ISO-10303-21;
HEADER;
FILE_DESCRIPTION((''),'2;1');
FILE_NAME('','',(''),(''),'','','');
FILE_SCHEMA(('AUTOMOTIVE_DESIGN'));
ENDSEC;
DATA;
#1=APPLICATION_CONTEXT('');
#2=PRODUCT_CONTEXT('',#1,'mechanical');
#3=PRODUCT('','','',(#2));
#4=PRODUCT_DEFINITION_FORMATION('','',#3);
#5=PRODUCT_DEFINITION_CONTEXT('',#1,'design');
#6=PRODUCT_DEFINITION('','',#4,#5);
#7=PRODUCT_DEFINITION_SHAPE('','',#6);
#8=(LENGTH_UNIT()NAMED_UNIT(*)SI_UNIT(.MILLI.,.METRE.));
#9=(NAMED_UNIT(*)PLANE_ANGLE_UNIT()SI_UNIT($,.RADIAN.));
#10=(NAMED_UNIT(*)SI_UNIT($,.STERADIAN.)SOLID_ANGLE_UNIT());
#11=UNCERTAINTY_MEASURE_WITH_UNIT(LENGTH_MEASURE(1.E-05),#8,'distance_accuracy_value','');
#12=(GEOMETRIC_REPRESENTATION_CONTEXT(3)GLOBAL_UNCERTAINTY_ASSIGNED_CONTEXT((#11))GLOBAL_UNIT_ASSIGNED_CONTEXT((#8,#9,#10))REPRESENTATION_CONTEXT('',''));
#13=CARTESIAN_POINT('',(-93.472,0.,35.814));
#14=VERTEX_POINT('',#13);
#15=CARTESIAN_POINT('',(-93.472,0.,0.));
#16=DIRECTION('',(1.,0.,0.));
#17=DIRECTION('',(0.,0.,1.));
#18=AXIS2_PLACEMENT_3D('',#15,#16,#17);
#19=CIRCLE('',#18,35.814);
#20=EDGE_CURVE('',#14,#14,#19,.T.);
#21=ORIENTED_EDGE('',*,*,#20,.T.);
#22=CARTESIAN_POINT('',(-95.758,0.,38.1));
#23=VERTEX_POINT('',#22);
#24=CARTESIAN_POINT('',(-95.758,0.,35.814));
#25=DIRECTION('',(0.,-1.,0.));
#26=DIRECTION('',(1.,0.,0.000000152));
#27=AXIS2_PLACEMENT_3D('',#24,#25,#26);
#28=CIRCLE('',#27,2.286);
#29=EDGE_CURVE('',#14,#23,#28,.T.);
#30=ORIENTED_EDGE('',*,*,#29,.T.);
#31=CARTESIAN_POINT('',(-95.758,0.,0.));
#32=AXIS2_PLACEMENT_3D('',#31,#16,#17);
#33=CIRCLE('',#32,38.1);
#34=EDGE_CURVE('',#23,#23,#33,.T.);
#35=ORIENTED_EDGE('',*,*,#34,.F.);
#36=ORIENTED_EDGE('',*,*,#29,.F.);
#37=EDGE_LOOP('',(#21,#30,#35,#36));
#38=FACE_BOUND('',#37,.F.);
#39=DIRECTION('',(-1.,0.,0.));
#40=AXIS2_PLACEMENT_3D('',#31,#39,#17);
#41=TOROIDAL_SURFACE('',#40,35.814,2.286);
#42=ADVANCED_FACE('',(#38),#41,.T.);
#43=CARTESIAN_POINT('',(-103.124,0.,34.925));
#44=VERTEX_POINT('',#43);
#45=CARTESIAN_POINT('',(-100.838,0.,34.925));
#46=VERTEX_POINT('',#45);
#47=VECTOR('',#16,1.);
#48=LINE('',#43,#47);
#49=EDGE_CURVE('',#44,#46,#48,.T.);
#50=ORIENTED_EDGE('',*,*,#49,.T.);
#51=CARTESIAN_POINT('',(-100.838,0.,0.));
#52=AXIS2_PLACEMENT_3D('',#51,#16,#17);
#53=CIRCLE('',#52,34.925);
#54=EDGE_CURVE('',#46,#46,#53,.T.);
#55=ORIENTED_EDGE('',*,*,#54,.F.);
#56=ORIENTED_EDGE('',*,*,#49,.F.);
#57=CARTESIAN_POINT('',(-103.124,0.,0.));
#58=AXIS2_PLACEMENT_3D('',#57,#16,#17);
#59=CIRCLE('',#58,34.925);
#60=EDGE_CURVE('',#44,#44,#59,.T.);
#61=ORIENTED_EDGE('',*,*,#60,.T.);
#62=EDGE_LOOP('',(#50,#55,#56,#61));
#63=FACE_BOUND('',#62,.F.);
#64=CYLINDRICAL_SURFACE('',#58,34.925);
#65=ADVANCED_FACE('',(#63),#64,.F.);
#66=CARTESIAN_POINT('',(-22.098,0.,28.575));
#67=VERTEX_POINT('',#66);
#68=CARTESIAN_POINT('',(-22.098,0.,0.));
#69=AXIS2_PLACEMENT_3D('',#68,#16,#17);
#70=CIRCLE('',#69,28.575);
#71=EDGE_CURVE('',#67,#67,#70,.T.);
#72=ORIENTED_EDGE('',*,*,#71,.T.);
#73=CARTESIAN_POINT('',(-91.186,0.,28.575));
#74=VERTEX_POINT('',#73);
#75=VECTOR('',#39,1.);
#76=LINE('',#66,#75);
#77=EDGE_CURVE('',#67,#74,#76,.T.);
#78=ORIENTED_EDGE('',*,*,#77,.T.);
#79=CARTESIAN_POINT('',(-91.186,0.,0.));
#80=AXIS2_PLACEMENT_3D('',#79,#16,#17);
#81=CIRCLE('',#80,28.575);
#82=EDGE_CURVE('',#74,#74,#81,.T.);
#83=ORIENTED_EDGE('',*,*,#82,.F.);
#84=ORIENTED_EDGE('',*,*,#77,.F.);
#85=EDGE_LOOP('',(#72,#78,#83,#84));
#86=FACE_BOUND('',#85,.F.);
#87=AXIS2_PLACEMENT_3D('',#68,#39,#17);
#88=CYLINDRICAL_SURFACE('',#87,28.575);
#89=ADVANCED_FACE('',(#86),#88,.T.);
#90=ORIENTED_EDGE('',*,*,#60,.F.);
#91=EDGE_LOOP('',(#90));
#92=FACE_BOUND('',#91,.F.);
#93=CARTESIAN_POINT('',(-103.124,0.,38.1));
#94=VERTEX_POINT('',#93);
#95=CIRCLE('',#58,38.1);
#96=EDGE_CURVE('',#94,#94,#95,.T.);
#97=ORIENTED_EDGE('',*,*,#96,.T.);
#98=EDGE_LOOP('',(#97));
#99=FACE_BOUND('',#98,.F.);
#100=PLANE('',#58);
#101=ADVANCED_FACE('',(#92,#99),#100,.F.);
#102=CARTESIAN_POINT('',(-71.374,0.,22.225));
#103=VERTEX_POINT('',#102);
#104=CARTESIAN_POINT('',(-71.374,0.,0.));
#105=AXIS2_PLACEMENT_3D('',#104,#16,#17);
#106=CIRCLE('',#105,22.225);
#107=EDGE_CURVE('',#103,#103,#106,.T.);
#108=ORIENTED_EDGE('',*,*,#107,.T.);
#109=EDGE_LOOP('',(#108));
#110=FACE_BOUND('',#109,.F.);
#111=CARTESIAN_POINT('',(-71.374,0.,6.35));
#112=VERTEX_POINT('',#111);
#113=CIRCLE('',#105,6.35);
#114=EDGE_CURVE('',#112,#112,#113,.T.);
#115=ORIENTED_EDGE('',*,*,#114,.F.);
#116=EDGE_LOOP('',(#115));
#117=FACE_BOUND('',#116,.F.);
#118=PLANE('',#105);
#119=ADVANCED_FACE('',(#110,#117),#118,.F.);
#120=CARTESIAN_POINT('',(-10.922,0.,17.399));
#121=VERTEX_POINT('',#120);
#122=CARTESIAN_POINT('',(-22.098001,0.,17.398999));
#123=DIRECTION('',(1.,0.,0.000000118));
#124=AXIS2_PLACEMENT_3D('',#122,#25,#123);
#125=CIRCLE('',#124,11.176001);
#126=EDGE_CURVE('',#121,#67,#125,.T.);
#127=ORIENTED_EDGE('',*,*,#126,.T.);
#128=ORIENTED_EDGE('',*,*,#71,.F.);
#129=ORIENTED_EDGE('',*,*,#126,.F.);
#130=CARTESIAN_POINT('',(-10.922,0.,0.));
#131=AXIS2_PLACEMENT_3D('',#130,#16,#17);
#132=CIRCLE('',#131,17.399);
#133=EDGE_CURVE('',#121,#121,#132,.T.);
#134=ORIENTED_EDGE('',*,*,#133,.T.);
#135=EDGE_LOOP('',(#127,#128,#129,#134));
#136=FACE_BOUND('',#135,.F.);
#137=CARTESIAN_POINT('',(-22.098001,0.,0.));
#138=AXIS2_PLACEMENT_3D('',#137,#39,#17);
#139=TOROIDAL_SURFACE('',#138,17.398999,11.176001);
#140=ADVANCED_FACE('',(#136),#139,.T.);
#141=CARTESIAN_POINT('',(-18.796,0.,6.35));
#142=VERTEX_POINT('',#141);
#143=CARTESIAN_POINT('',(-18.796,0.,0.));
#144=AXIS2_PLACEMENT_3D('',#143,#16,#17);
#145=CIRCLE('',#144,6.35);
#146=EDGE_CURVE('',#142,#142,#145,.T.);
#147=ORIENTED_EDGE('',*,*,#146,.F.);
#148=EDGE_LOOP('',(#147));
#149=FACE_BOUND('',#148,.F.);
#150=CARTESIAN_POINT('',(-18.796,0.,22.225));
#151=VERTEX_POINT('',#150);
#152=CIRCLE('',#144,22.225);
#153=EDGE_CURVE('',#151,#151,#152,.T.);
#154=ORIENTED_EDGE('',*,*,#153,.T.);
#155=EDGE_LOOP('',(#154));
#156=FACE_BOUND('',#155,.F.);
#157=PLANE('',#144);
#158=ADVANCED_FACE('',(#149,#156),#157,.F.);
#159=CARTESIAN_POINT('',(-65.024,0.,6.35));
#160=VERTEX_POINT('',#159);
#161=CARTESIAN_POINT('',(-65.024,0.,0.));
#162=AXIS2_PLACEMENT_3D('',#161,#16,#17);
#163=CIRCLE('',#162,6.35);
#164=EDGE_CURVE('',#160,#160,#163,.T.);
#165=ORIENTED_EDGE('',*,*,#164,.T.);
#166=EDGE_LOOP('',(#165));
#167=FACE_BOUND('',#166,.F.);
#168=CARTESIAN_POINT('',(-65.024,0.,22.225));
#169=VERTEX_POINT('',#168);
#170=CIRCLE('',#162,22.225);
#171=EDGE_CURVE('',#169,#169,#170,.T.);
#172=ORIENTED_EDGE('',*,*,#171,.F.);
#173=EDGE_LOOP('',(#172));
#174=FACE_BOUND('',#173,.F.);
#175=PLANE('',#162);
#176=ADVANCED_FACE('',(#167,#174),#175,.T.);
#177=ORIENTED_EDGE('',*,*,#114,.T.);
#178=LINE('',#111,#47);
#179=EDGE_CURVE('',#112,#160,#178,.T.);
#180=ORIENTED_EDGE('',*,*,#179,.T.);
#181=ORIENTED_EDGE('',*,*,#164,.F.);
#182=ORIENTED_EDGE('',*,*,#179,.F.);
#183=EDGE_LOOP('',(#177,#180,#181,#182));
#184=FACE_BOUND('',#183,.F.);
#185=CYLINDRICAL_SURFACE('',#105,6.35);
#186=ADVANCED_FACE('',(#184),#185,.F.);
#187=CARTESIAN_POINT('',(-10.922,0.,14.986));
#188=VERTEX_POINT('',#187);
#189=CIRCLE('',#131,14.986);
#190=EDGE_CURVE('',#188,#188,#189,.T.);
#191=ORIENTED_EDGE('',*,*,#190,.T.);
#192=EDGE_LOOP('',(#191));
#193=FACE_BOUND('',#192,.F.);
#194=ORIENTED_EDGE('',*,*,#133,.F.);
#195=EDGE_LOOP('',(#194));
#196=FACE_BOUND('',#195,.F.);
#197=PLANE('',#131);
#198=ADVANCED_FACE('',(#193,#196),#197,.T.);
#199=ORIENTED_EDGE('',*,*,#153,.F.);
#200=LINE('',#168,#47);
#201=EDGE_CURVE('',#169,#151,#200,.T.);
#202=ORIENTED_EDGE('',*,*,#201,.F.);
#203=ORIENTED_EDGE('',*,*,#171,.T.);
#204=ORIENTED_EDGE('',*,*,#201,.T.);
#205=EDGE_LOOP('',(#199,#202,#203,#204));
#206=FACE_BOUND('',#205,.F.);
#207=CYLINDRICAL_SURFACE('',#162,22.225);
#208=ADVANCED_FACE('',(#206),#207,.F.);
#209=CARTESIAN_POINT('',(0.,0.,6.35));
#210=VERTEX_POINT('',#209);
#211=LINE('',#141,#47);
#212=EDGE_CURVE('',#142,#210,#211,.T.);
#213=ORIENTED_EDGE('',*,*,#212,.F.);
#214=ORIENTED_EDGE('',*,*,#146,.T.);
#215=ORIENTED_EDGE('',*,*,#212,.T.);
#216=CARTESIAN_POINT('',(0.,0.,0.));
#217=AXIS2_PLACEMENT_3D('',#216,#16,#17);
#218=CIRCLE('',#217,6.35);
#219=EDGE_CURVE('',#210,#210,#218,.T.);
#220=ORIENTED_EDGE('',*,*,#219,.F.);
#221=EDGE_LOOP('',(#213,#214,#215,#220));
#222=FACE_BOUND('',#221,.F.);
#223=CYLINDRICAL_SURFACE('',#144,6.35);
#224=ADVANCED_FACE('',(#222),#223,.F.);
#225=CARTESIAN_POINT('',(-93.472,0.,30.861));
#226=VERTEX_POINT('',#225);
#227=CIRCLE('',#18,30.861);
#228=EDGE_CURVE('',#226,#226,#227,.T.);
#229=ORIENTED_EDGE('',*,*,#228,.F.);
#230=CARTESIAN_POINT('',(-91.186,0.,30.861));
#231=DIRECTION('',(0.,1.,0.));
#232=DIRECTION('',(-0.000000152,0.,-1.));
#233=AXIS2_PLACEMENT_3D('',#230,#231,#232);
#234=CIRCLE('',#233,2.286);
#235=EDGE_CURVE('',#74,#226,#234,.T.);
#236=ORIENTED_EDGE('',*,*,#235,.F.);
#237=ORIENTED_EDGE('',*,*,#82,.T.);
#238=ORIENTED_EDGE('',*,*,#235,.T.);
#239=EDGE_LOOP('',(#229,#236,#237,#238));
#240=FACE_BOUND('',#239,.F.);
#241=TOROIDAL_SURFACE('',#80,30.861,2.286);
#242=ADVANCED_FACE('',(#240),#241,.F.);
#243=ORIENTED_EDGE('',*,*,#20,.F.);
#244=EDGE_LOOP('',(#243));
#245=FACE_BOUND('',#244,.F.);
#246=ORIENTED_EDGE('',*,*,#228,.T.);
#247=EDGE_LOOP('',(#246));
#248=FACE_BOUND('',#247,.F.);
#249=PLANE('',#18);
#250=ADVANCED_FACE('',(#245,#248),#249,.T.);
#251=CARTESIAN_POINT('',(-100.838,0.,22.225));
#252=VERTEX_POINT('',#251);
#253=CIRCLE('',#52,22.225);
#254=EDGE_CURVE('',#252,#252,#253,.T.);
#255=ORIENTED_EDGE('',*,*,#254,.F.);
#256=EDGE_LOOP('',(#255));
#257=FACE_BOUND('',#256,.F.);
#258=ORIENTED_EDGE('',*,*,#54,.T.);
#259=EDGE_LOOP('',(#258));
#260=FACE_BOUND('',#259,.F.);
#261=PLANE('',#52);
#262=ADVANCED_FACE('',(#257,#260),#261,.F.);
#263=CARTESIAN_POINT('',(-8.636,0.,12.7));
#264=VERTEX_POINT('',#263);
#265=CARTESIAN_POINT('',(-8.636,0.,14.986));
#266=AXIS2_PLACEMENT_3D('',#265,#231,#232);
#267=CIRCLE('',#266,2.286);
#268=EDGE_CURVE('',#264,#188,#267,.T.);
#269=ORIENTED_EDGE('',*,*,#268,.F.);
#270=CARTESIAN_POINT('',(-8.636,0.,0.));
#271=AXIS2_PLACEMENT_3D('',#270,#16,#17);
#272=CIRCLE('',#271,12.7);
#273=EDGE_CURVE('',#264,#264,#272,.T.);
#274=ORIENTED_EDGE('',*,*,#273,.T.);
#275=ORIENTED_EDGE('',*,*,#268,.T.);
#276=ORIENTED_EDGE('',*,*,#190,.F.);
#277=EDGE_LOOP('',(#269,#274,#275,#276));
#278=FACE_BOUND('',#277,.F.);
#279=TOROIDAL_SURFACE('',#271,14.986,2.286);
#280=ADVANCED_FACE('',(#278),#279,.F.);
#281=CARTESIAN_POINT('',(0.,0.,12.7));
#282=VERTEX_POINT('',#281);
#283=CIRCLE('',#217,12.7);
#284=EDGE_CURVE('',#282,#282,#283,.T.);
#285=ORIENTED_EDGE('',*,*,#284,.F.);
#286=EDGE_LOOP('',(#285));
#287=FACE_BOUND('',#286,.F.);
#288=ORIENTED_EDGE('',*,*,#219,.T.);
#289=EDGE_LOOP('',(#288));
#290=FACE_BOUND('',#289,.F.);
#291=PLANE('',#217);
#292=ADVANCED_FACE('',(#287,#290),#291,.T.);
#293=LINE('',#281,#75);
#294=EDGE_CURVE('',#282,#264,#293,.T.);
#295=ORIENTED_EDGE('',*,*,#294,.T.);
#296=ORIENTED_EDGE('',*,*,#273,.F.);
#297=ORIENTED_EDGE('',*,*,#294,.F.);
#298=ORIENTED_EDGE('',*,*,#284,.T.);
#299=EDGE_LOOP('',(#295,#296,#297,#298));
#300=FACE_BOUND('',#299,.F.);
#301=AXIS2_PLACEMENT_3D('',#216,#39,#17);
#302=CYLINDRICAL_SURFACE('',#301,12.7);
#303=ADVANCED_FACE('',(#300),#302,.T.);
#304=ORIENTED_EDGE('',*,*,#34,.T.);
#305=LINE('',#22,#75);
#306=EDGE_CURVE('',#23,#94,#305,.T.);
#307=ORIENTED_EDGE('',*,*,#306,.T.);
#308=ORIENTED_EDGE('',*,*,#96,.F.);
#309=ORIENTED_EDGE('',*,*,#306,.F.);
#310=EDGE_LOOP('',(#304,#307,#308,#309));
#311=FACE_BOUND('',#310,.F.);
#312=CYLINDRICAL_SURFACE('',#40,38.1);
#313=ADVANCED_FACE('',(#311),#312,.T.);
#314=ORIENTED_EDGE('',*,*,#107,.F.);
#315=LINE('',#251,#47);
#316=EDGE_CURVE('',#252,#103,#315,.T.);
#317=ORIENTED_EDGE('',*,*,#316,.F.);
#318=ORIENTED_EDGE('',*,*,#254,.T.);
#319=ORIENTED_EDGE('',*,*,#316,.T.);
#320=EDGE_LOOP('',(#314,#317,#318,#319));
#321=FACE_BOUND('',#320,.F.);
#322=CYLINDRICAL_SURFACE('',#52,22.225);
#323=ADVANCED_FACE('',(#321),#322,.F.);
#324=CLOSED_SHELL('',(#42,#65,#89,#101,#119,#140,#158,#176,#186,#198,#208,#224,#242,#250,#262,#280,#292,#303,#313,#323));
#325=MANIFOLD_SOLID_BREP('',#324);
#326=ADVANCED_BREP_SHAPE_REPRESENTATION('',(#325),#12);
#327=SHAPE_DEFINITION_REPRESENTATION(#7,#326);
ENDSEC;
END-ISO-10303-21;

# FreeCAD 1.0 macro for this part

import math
import FreeCAD as App
import Part
import Sketcher
Q = App.Units.Quantity

doc = App.newDocument("Part")
body = doc.addObject("PartDesign::Body", "Body")

# Sketch on XZ plane
sketch1 = body.newObject("Sketcher::SketchObject", "Sketch")
sketch1.AttachmentSupport = (doc.getObject("XZ_Plane"), [""])
sketch1.MapMode = "FlatFace"
sketch1.addGeometry([
    Part.LineSegment(App.Vector(-18.8, 6.3, 0), App.Vector(0, 6.3, 0)),  # 0
    Part.LineSegment(App.Vector(0, 6.3, 0), App.Vector(0, 12.7, 0)),  # 1
    Part.LineSegment(App.Vector(0, 12.7, 0), App.Vector(-8.6, 12.7, 0)),  # 2
    Part.ArcOfCircle(Part.Circle(App.Vector(-8.6, 15, 0), App.Vector(0, 0, 1), 2.3), math.radians(-180), math.radians(-90)),  # 3
    Part.LineSegment(App.Vector(-10.9, 15, 0), App.Vector(-10.9, 17.4, 0)),  # 4
    Part.ArcOfCircle(Part.Circle(App.Vector(-22.1, 17.4, 0), App.Vector(0, 0, 1), 11.2), math.radians(0), math.radians(90)),  # 5
    Part.LineSegment(App.Vector(-22.1, 28.6, 0), App.Vector(-91.2, 28.6, 0)),  # 6
    Part.ArcOfCircle(Part.Circle(App.Vector(-91.2, 30.9, 0), App.Vector(0, 0, 1), 2.3), math.radians(-180), math.radians(-90)),  # 7
    Part.LineSegment(App.Vector(-93.5, 30.9, 0), App.Vector(-93.5, 35.8, 0)),  # 8
    Part.ArcOfCircle(Part.Circle(App.Vector(-95.8, 35.8, 0), App.Vector(0, 0, 1), 2.3), math.radians(0), math.radians(90)),  # 9
    Part.LineSegment(App.Vector(-95.8, 38.1, 0), App.Vector(-103.1, 38.1, 0)),  # 10
    Part.LineSegment(App.Vector(-103.1, 38.1, 0), App.Vector(-103.1, 34.9, 0)),  # 11
    Part.LineSegment(App.Vector(-103.1, 34.9, 0), App.Vector(-100.8, 34.9, 0)),  # 12
    Part.LineSegment(App.Vector(-100.8, 34.9, 0), App.Vector(-100.8, 22.2, 0)),  # 13
    Part.LineSegment(App.Vector(-100.8, 22.2, 0), App.Vector(-71.4, 22.2, 0)),  # 14
    Part.LineSegment(App.Vector(-71.4, 22.2, 0), App.Vector(-71.4, 6.3, 0)),  # 15
    Part.LineSegment(App.Vector(-71.4, 6.3, 0), App.Vector(-65, 6.3, 0)),  # 16
    Part.LineSegment(App.Vector(-65, 6.3, 0), App.Vector(-65, 22.2, 0)),  # 17
    Part.LineSegment(App.Vector(-65, 22.2, 0), App.Vector(-18.8, 22.2, 0)),  # 18
    Part.LineSegment(App.Vector(-18.8, 22.2, 0), App.Vector(-18.8, 6.3, 0)),  # 19
], False)
sketch1.addConstraint([
    Sketcher.Constraint("Coincident", 0, 2, 1, 1),
    Sketcher.Constraint("Coincident", 1, 2, 2, 1),
    Sketcher.Constraint("Tangent", 2, 2, 3, 2),
    Sketcher.Constraint("Tangent", 3, 1, 4, 1),
    Sketcher.Constraint("Tangent", 4, 2, 5, 1),
    Sketcher.Constraint("Tangent", 5, 2, 6, 1),
    Sketcher.Constraint("Tangent", 6, 2, 7, 2),
    Sketcher.Constraint("Tangent", 7, 1, 8, 1),
    Sketcher.Constraint("Tangent", 8, 2, 9, 1),
    Sketcher.Constraint("Tangent", 9, 2, 10, 1),
    Sketcher.Constraint("Coincident", 10, 2, 11, 1),
    Sketcher.Constraint("Coincident", 11, 2, 12, 1),
    Sketcher.Constraint("Coincident", 12, 2, 13, 1),
    Sketcher.Constraint("Coincident", 13, 2, 14, 1),
    Sketcher.Constraint("Coincident", 14, 2, 15, 1),
    Sketcher.Constraint("Coincident", 15, 2, 16, 1),
    Sketcher.Constraint("Coincident", 16, 2, 17, 1),
    Sketcher.Constraint("Coincident", 17, 2, 18, 1),
    Sketcher.Constraint("Coincident", 18, 2, 19, 1),
    Sketcher.Constraint("Coincident", 19, 2, 0, 1),
    Sketcher.Constraint("Horizontal", 0),
    Sketcher.Constraint("Vertical", 1),
    Sketcher.Constraint("Horizontal", 2),
    Sketcher.Constraint("Vertical", 4),
    Sketcher.Constraint("Horizontal", 6),
    Sketcher.Constraint("Vertical", 8),
    Sketcher.Constraint("Horizontal", 10),
    Sketcher.Constraint("Vertical", 11),
    Sketcher.Constraint("Horizontal", 12),
    Sketcher.Constraint("Vertical", 13),
    Sketcher.Constraint("Horizontal", 14),
    Sketcher.Constraint("Vertical", 15),
    Sketcher.Constraint("Horizontal", 16),
    Sketcher.Constraint("Vertical", 17),
    Sketcher.Constraint("Horizontal", 18),
    Sketcher.Constraint("Vertical", 19),
    Sketcher.Constraint("Equal", 3, 7),
    Sketcher.Constraint("Equal", 7, 9),
    Sketcher.Constraint("PointOnObject", 0, 2, -2),
    Sketcher.Constraint("Horizontal", 0, 2, 15, 2),
    Sketcher.Constraint("Horizontal", 14, 2, 17, 2),
    Sketcher.Constraint("Equal", 16, 1),
    Sketcher.Constraint("Radius", 3, Q("0.09 in")),
    Sketcher.Constraint("Radius", 5, Q("0.4400001 in")),
    Sketcher.Constraint("DistanceY", 13, 2, 13, 1, Q("0.5 in")),
    Sketcher.Constraint("DistanceX", 0, 1, 0, 2, Q("0.74 in")),
    Sketcher.Constraint("DistanceX", 2, 2, 2, 1, Q("0.34 in")),
    Sketcher.Constraint("DistanceX", 6, 2, 6, 1, Q("2.72 in")),
    Sketcher.Constraint("DistanceX", 10, 2, 10, 1, Q("0.29 in")),
    Sketcher.Constraint("DistanceX", 12, 1, 12, 2, Q("0.09 in")),
    Sketcher.Constraint("DistanceX", 14, 1, 14, 2, Q("1.16 in")),
    Sketcher.Constraint("DistanceX", 16, 1, 16, 2, Q("0.25 in")),
    Sketcher.Constraint("DistanceY", -1, 1, 1, 2, Q("0.5 in")),
    Sketcher.Constraint("DistanceY", -1, 1, 9, 2, Q("1.5 in")),
    Sketcher.Constraint("DistanceY", 4, 1, 4, 2, Q("0.095 in")),
    Sketcher.Constraint("DistanceY", 11, 2, 11, 1, Q("0.125 in")),
])
revolution = body.newObject("PartDesign::Revolution", "Revolution")
revolution.Profile = sketch1
revolution.ReferenceAxis = (sketch1, ["H_Axis"])
revolution.Angle = 360

doc.recompute()
